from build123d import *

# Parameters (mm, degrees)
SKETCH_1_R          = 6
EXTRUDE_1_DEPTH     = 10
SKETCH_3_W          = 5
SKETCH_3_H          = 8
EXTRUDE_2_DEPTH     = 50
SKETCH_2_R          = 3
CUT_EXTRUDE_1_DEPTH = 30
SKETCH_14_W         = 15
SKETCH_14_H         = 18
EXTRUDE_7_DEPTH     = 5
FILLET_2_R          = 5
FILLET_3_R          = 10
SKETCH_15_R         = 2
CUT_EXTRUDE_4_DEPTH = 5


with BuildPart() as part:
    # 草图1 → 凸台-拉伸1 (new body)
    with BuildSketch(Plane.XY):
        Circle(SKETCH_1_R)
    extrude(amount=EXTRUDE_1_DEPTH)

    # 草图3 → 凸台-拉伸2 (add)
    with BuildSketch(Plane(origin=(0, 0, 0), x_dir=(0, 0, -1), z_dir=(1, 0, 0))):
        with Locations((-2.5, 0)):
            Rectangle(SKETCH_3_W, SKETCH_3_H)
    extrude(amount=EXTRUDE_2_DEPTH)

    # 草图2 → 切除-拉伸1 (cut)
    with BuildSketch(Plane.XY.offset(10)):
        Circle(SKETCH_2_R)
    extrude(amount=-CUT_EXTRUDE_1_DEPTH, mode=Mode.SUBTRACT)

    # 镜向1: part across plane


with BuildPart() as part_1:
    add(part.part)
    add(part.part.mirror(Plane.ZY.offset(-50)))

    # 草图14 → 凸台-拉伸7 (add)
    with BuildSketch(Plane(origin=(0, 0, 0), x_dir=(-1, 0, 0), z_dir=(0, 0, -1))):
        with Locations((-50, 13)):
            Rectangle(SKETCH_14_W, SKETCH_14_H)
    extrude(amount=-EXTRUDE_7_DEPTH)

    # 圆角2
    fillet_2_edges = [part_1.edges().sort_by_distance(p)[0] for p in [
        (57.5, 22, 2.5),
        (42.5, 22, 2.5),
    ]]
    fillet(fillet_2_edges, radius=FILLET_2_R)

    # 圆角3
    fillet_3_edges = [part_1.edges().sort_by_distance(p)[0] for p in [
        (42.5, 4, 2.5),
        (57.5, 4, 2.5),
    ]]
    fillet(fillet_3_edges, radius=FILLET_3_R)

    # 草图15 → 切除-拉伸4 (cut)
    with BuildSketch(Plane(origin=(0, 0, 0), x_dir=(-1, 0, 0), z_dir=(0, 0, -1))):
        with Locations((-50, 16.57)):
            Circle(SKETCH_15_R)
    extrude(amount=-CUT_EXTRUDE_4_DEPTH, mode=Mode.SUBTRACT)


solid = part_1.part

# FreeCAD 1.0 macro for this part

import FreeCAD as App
import Part
import Sketcher
from FreeCAD import Vector


def edges_at(feature, points):
    """Names of the edges that pass closest to the given points."""
    edges = feature.Shape.Edges
    near = lambda p: min(range(len(edges)), key=lambda i: edges[i].distToShape(Part.Vertex(*p))[0])
    return sorted({f"Edge{near(p) + 1}" for p in points})


def add_polygon(sketch, points):
    """Adds a closed chain of lines whose ends are joined by coincident constraints."""
    first, n = sketch.GeometryCount, len(points)
    for a, b in zip(points, points[1:] + points[:1]):
        sketch.addGeometry(Part.LineSegment(App.Vector(*a, 0), App.Vector(*b, 0)), False)
    for i in range(n):
        sketch.addConstraint(Sketcher.Constraint("Coincident", first + i, 2, first + (i + 1) % n, 1))

doc = App.newDocument("Part")
body = doc.addObject("PartDesign::Body", "Body")

# Sketch on XY plane
sketch1 = doc.addObject("Sketcher::SketchObject", "Sketch")
body.addObject(sketch1)
sketch1.AttachmentSupport = (doc.XY_Plane, [""])
sketch1.MapMode = "FlatFace"
sketch1.addGeometry(Part.Circle(Vector(0, 0, 0), Vector(0, 0, 1), 6), False)
sketch1.addConstraint(Sketcher.Constraint("Coincident", 0, 3, -1, 1))
sketch1.addConstraint(Sketcher.Constraint("Diameter", 0, 12.0))
pad1 = doc.addObject("PartDesign::Pad", "Pad")
body.addObject(pad1)
pad1.Profile = sketch1
pad1.Length = 10

# Sketch on YZ plane
sketch2 = doc.addObject("Sketcher::SketchObject", "Sketch001")
body.addObject(sketch2)
sketch2.AttachmentSupport = (doc.YZ_Plane, [""])
sketch2.MapMode = "FlatFace"
add_polygon(sketch2, [(4, 5), (-4, 5), (-4, 0), (4, 0)])  # lines 0-3
sketch2.addConstraint(Sketcher.Constraint("Horizontal", 0))
sketch2.addConstraint(Sketcher.Constraint("Vertical", 1))
sketch2.addConstraint(Sketcher.Constraint("Horizontal", 2))
sketch2.addConstraint(Sketcher.Constraint("Vertical", 3))
sketch2.addConstraint(Sketcher.Constraint("Symmetric", 1, 2, 2, 2, -1, 1))
sketch2.addConstraint(Sketcher.Constraint("DistanceX", 0, 2, 0, 1, 8.0))
sketch2.addConstraint(Sketcher.Constraint("DistanceY", 1, 2, 1, 1, 5.0))
pad2 = doc.addObject("PartDesign::Pad", "Pad001")
body.addObject(pad2)
pad2.Profile = sketch2
pad2.Length = 50

# Sketch on XY plane
sketch3 = doc.addObject("Sketcher::SketchObject", "Sketch002")
body.addObject(sketch3)
sketch3.AttachmentSupport = (doc.XY_Plane, [""])
sketch3.MapMode = "FlatFace"
sketch3.AttachmentOffset = App.Placement(Vector(0, 0, 10), App.Rotation())
sketch3.addGeometry(Part.Circle(Vector(0, 0, 0), Vector(0, 0, 1), 3), False)
sketch3.addConstraint(Sketcher.Constraint("Coincident", 0, 3, -1, 1))
sketch3.addConstraint(Sketcher.Constraint("Diameter", 0, 6.0))
pocket1 = doc.addObject("PartDesign::Pocket", "Pocket")
body.addObject(pocket1)
pocket1.Profile = sketch3
pocket1.Length = 30
body2 = doc.addObject("PartDesign::Body", "Body001")
doc.recompute()

body2.BaseFeature = body
doc.recompute()

mirroring = doc.addObject("Part::Mirroring", "Mirroring")
mirroring.Source = body
mirroring.Base = Vector(50, 0, 0)
mirroring.Normal = Vector(-1, 0, 0)
body3 = doc.addObject("PartDesign::Body", "Body002")
body3.BaseFeature = mirroring
boolean = doc.addObject("PartDesign::Boolean", "Boolean")
body2.addObject(boolean)
boolean.Type = "Fuse"
boolean.addObjects([body3])
doc.recompute()

# Sketch on XY plane
sketch4 = doc.addObject("Sketcher::SketchObject", "Sketch003")
body2.addObject(sketch4)
sketch4.AttachmentSupport = (doc.getObject("XY_Plane001"), [""])
sketch4.MapMode = "FlatFace"
add_polygon(sketch4, [(58, 22), (58, 4), (42, 4), (42, 22)])  # lines 0-3
sketch4.addConstraint(Sketcher.Constraint("Vertical", 0))
sketch4.addConstraint(Sketcher.Constraint("Horizontal", 1))
sketch4.addConstraint(Sketcher.Constraint("Vertical", 2))
sketch4.addConstraint(Sketcher.Constraint("Horizontal", 3))
sketch4.addConstraint(Sketcher.Constraint("DistanceX", 1, 2, 1, 1, 15.0))
sketch4.addConstraint(Sketcher.Constraint("DistanceY", 0, 2, 0, 1, 18.0))
sketch4.addConstraint(Sketcher.Constraint("DistanceY", -1, 1, 0, 2, 4.0))
sketch4.addConstraint(Sketcher.Constraint("DistanceX", -1, 1, 0, 2, 57.5))
pad3 = doc.addObject("PartDesign::Pad", "Pad002")
body2.addObject(pad3)
pad3.Profile = sketch4
pad3.Length = 5
doc.recompute()

fillet = doc.addObject("PartDesign::Fillet", "Fillet")
body2.addObject(fillet)
fillet.Base = (pad3, edges_at(pad3, [(57.5, 22, 2.5), (42.5, 22, 2.5)]))
fillet.Radius = 5
doc.recompute()

fillet2 = doc.addObject("PartDesign::Fillet", "Fillet001")
body2.addObject(fillet2)
fillet2.Base = (fillet, edges_at(fillet, [(42.5, 4, 2.5), (57.5, 4, 2.5)]))
fillet2.Radius = 10

# Sketch on XY plane
sketch5 = doc.addObject("Sketcher::SketchObject", "Sketch004")
body2.addObject(sketch5)
sketch5.AttachmentSupport = (doc.getObject("XY_Plane001"), [""])
sketch5.MapMode = "FlatFace"
sketch5.addGeometry(Part.Circle(Vector(50, 16.6, 0), Vector(0, 0, 1), 2), False)
sketch5.addConstraint(Sketcher.Constraint("Diameter", 0, 4.0))
sketch5.addConstraint(Sketcher.Constraint("DistanceX", -1, 1, 0, 3, 50.0))
sketch5.addConstraint(Sketcher.Constraint("DistanceY", -1, 1, 0, 3, 16.57))
pocket2 = doc.addObject("PartDesign::Pocket", "Pocket001")
body2.addObject(pocket2)
pocket2.Profile = sketch5
pocket2.Length = 5
pocket2.Reversed = True
mirroring.Visibility = False

doc.recompute()
